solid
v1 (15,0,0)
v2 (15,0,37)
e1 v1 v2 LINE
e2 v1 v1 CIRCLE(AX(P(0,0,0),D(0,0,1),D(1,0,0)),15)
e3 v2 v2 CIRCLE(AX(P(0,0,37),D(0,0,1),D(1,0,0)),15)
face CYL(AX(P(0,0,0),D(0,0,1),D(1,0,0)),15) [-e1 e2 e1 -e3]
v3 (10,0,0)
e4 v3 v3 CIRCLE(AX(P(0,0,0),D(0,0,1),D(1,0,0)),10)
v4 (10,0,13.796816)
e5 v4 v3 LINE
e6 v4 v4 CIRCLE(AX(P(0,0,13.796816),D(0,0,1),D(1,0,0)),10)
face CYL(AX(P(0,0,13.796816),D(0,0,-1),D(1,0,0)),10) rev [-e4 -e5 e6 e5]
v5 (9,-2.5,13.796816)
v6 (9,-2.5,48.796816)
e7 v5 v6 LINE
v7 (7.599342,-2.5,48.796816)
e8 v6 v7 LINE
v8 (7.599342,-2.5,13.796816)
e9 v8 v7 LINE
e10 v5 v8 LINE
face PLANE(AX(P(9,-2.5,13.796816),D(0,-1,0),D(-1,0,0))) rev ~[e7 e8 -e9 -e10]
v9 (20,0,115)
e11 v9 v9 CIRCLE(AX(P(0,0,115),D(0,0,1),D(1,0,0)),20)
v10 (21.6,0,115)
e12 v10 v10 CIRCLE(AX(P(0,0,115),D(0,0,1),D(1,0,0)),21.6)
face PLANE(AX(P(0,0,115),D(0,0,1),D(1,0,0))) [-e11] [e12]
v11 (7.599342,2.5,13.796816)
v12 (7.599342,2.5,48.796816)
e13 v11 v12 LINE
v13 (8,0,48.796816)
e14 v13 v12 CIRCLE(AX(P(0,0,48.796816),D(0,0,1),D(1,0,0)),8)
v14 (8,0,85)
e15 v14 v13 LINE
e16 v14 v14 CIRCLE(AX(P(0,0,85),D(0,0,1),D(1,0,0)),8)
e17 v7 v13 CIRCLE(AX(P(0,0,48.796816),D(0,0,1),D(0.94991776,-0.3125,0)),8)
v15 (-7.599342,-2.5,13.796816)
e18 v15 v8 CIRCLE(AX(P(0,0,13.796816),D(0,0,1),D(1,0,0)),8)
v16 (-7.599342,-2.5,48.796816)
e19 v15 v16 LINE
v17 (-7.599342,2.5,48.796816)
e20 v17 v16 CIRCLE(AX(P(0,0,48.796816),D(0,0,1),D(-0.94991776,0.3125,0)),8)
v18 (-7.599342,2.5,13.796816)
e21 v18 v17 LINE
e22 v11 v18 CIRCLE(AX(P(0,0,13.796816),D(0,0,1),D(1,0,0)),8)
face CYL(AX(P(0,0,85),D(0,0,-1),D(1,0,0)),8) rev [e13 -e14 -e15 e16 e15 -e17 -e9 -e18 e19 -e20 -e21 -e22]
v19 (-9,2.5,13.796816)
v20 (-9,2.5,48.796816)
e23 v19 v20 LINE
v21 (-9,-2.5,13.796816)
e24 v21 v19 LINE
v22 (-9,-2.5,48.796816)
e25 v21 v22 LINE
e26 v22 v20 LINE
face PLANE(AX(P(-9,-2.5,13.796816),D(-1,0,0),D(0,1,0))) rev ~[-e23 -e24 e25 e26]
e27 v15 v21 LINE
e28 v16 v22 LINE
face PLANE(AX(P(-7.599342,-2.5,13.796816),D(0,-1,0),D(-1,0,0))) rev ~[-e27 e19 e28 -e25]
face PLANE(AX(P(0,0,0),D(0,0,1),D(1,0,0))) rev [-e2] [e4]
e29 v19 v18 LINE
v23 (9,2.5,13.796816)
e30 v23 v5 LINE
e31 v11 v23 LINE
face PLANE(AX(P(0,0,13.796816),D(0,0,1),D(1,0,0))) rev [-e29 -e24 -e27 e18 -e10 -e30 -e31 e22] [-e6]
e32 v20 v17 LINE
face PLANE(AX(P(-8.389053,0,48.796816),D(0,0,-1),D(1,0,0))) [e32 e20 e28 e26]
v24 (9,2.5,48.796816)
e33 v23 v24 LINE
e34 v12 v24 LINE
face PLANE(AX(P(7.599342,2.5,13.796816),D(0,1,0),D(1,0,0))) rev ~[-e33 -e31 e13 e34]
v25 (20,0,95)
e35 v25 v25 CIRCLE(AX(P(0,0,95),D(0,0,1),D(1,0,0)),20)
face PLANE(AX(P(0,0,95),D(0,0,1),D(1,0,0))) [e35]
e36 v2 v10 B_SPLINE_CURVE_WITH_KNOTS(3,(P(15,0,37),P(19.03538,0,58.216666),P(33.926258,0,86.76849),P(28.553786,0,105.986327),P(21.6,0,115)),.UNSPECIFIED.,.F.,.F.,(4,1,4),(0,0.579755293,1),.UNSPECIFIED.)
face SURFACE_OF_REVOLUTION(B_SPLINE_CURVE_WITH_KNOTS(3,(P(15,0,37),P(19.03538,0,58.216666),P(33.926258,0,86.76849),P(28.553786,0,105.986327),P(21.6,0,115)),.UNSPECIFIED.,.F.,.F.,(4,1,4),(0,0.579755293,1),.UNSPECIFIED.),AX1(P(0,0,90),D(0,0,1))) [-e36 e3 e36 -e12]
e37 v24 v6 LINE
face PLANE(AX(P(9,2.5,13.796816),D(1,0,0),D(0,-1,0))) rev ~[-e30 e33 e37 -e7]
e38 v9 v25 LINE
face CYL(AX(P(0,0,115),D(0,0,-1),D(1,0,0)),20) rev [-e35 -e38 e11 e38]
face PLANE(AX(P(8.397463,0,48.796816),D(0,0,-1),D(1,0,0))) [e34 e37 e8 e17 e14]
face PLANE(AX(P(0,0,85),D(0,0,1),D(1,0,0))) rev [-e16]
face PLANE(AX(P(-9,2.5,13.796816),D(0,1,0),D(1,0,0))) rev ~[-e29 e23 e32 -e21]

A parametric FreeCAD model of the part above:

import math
import FreeCAD as App
import Part
import Sketcher
Q = App.Units.Quantity

doc = App.newDocument("Part")
params = doc.addObject("Spreadsheet::Sheet", "Params")
for row, (alias, value) in enumerate([
    ("sketch1_width", "5 mm"),
    ("sketch1_width2", "20 mm"),
    ("sketch1_width3", "8 mm"),
    ("sketch1_height", "10 mm"),
    ("revolution_angle", "360 deg"),
    ("sketch2_radius", "8 mm"),
    ("sketch2_height", "5 mm"),
    ("pocket1_length", "35 mm"),
], start=1):
    params.set(f"A{row}", alias)
    params.set(f"B{row}", "=" + value)
    params.setAlias(f"B{row}", alias)

body = doc.addObject("PartDesign::Body", "Body")

sketch1 = body.newObject("Sketcher::SketchObject", "Sketch")
sketch1.AttachmentSupport = (doc.getObject("XZ_Plane"), [""])
sketch1.MapMode = "FlatFace"
sketch1.addGeometry(Part.LineSegment(App.Vector(10, 0, 0), App.Vector(15, 0, 0)), False)
sketch1.addGeometry(Part.LineSegment(App.Vector(15, 0, 0), App.Vector(15, 37, 0)), False)
sketch1.addGeometry(Part.BSplineCurve([App.Vector(15, 37, 0), App.Vector(19.03538, 58.216666, 0), App.Vector(33.926258, 86.76849, 0), App.Vector(28.553786, 105.986327, 0), App.Vector(21.6, 115, 0)], [4, 1, 4], [0, 0.579755293, 1], False, 3, [1, 1, 1, 1, 1], False), False)
sketch1.addGeometry(Part.LineSegment(App.Vector(21.6, 115, 0), App.Vector(20, 115, 0)), False)
sketch1.addGeometry(Part.LineSegment(App.Vector(20, 115, 0), App.Vector(20, 95, 0)), False)
sketch1.addGeometry(Part.LineSegment(App.Vector(20, 95, 0), App.Vector(0, 95, 0)), False)
sketch1.addGeometry(Part.LineSegment(App.Vector(0, 95, 0), App.Vector(0, 85, 0)), False)
sketch1.addGeometry(Part.LineSegment(App.Vector(0, 85, 0), App.Vector(8, 85, 0)), False)
sketch1.addGeometry(Part.LineSegment(App.Vector(8, 85, 0), App.Vector(8, 13.796816, 0)), False)
sketch1.addGeometry(Part.LineSegment(App.Vector(8, 13.796816, 0), App.Vector(10, 13.796816, 0)), False)
sketch1.addGeometry(Part.LineSegment(App.Vector(10, 13.796816, 0), App.Vector(10, 0, 0)), False)
sketch1.addConstraint(Sketcher.Constraint("Block", 2))
sketch1.addConstraint(Sketcher.Constraint("Coincident", 0, 2, 1, 1))
sketch1.addConstraint(Sketcher.Constraint("Coincident", 1, 2, 2, 1))
sketch1.addConstraint(Sketcher.Constraint("Coincident", 2, 2, 3, 1))
sketch1.addConstraint(Sketcher.Constraint("Coincident", 3, 2, 4, 1))
sketch1.addConstraint(Sketcher.Constraint("Coincident", 4, 2, 5, 1))
sketch1.addConstraint(Sketcher.Constraint("Coincident", 5, 2, 6, 1))
sketch1.addConstraint(Sketcher.Constraint("Coincident", 6, 2, 7, 1))
sketch1.addConstraint(Sketcher.Constraint("Coincident", 7, 2, 8, 1))
sketch1.addConstraint(Sketcher.Constraint("Coincident", 8, 2, 9, 1))
sketch1.addConstraint(Sketcher.Constraint("Coincident", 9, 2, 10, 1))
sketch1.addConstraint(Sketcher.Constraint("Coincident", 10, 2, 0, 1))
sketch1.addConstraint(Sketcher.Constraint("Horizontal", 0))
sketch1.addConstraint(Sketcher.Constraint("Vertical", 1))
sketch1.addConstraint(Sketcher.Constraint("Horizontal", 3))
sketch1.addConstraint(Sketcher.Constraint("Vertical", 4))
sketch1.addConstraint(Sketcher.Constraint("Horizontal", 5))
sketch1.addConstraint(Sketcher.Constraint("Vertical", 6))
sketch1.addConstraint(Sketcher.Constraint("Horizontal", 7))
sketch1.addConstraint(Sketcher.Constraint("Vertical", 8))
sketch1.addConstraint(Sketcher.Constraint("Horizontal", 9))
sketch1.addConstraint(Sketcher.Constraint("Vertical", 10))
sketch1.addConstraint(Sketcher.Constraint("PointOnObject", 0, 2, -1))
sketch1.addConstraint(Sketcher.Constraint("PointOnObject", 5, 2, -2))
sketch1.addConstraint(Sketcher.Constraint("Equal", 5, 4))
sketch1.addConstraint(Sketcher.Constraint("DistanceX", 0, 1, 0, 2, Q("5 mm")))
sketch1.addConstraint(Sketcher.Constraint("DistanceX", 5, 2, 5, 1, Q("20 mm")))
sketch1.addConstraint(Sketcher.Constraint("DistanceX", 7, 1, 7, 2, Q("8 mm")))
sketch1.addConstraint(Sketcher.Constraint("DistanceY", 6, 2, 6, 1, Q("10 mm")))
sketch1.addConstraint(Sketcher.Constraint("DistanceY", 8, 2, 8, 1, Q("71.203184 mm")))
sketch1.setExpression("Constraints[25]", "Params.sketch1_width")
sketch1.setExpression("Constraints[26]", "Params.sketch1_width2")
sketch1.setExpression("Constraints[27]", "Params.sketch1_width3")
sketch1.setExpression("Constraints[28]", "Params.sketch1_height")
revolution = body.newObject("PartDesign::Revolution", "Revolution")
revolution.Profile = sketch1
revolution.ReferenceAxis = (sketch1, ["V_Axis"])
revolution.setExpression("Angle", "Params.revolution_angle")

sketch2 = body.newObject("Sketcher::SketchObject", "Sketch001")
sketch2.AttachmentSupport = (doc.getObject("XY_Plane"), [""])
sketch2.MapMode = "FlatFace"
sketch2.AttachmentOffset = App.Placement(App.Vector(0, 0, 13.796816), App.Rotation())
sketch2.addGeometry(Part.LineSegment(App.Vector(-7.6, -2.5, 0), App.Vector(-9, -2.5, 0)), False)
sketch2.addGeometry(Part.LineSegment(App.Vector(-9, -2.5, 0), App.Vector(-9, 2.5, 0)), False)
sketch2.addGeometry(Part.LineSegment(App.Vector(-9, 2.5, 0), App.Vector(-7.6, 2.5, 0)), False)
sketch2.addGeometry(Part.ArcOfCircle(Part.Circle(App.Vector(0, 0, 0), App.Vector(0, 0, 1), 8), math.radians(162), math.radians(198)), False)
sketch2.addGeometry(Part.LineSegment(App.Vector(9, -2.5, 0), App.Vector(7.6, -2.5, 0)), False)
sketch2.addGeometry(Part.ArcOfCircle(Part.Circle(App.Vector(0, 0, 0), App.Vector(0, 0, 1), 8), math.radians(-18.21), math.radians(0)), False)
sketch2.addGeometry(Part.ArcOfCircle(Part.Circle(App.Vector(0, 0, 0), App.Vector(0, 0, 1), 8), math.radians(0), math.radians(18.21)), False)
sketch2.addGeometry(Part.LineSegment(App.Vector(7.6, 2.5, 0), App.Vector(9, 2.5, 0)), False)
sketch2.addGeometry(Part.LineSegment(App.Vector(9, 2.5, 0), App.Vector(9, -2.5, 0)), False)
sketch2.addConstraint(Sketcher.Constraint("Coincident", 0, 2, 1, 1))
sketch2.addConstraint(Sketcher.Constraint("Coincident", 1, 2, 2, 1))
sketch2.addConstraint(Sketcher.Constraint("Coincident", 2, 2, 3, 1))
sketch2.addConstraint(Sketcher.Constraint("Coincident", 3, 2, 0, 1))
sketch2.addConstraint(Sketcher.Constraint("Coincident", 4, 2, 5, 1))
sketch2.addConstraint(Sketcher.Constraint("Tangent", 5, 2, 6, 1))
sketch2.addConstraint(Sketcher.Constraint("Coincident", 6, 2, 7, 1))
sketch2.addConstraint(Sketcher.Constraint("Coincident", 7, 2, 8, 1))
sketch2.addConstraint(Sketcher.Constraint("Coincident", 8, 2, 4, 1))
sketch2.addConstraint(Sketcher.Constraint("Horizontal", 0))
sketch2.addConstraint(Sketcher.Constraint("Vertical", 1))
sketch2.addConstraint(Sketcher.Constraint("Horizontal", 2))
sketch2.addConstraint(Sketcher.Constraint("Horizontal", 4))
sketch2.addConstraint(Sketcher.Constraint("Horizontal", 7))
sketch2.addConstraint(Sketcher.Constraint("Vertical", 8))
sketch2.addConstraint(Sketcher.Constraint("Coincident", 3, 3, -1, 1))
sketch2.addConstraint(Sketcher.Constraint("Coincident", 5, 3, -1, 1))
sketch2.addConstraint(Sketcher.Constraint("Equal", 3, 5))
sketch2.addConstraint(Sketcher.Constraint("Equal", 5, 6))
sketch2.addConstraint(Sketcher.Constraint("Symmetric", 0, 2, 7, 2, -1, 1))
sketch2.addConstraint(Sketcher.Constraint("PointOnObject", 5, 2, -1))
sketch2.addConstraint(Sketcher.Constraint("Horizontal", 3, 2, 4, 2))
sketch2.addConstraint(Sketcher.Constraint("Horizontal", 2, 2, 6, 2))
sketch2.addConstraint(Sketcher.Constraint("Radius", 3, Q("8 mm")))
sketch2.addConstraint(Sketcher.Constraint("DistanceY", 1, 1, 1, 2, Q("5 mm")))
sketch2.addConstraint(Sketcher.Constraint("DistanceX", 0, 2, -1, 1, Q("9 mm")))
sketch2.setExpression("Constraints[23]", "Params.sketch2_radius")
sketch2.setExpression("Constraints[24]", "Params.sketch2_height")
pocket1 = body.newObject("PartDesign::Pocket", "Pocket")
pocket1.Profile = sketch2
pocket1.setExpression("Length", "Params.pocket1_length")
pocket1.Reversed = True

doc.recompute()
